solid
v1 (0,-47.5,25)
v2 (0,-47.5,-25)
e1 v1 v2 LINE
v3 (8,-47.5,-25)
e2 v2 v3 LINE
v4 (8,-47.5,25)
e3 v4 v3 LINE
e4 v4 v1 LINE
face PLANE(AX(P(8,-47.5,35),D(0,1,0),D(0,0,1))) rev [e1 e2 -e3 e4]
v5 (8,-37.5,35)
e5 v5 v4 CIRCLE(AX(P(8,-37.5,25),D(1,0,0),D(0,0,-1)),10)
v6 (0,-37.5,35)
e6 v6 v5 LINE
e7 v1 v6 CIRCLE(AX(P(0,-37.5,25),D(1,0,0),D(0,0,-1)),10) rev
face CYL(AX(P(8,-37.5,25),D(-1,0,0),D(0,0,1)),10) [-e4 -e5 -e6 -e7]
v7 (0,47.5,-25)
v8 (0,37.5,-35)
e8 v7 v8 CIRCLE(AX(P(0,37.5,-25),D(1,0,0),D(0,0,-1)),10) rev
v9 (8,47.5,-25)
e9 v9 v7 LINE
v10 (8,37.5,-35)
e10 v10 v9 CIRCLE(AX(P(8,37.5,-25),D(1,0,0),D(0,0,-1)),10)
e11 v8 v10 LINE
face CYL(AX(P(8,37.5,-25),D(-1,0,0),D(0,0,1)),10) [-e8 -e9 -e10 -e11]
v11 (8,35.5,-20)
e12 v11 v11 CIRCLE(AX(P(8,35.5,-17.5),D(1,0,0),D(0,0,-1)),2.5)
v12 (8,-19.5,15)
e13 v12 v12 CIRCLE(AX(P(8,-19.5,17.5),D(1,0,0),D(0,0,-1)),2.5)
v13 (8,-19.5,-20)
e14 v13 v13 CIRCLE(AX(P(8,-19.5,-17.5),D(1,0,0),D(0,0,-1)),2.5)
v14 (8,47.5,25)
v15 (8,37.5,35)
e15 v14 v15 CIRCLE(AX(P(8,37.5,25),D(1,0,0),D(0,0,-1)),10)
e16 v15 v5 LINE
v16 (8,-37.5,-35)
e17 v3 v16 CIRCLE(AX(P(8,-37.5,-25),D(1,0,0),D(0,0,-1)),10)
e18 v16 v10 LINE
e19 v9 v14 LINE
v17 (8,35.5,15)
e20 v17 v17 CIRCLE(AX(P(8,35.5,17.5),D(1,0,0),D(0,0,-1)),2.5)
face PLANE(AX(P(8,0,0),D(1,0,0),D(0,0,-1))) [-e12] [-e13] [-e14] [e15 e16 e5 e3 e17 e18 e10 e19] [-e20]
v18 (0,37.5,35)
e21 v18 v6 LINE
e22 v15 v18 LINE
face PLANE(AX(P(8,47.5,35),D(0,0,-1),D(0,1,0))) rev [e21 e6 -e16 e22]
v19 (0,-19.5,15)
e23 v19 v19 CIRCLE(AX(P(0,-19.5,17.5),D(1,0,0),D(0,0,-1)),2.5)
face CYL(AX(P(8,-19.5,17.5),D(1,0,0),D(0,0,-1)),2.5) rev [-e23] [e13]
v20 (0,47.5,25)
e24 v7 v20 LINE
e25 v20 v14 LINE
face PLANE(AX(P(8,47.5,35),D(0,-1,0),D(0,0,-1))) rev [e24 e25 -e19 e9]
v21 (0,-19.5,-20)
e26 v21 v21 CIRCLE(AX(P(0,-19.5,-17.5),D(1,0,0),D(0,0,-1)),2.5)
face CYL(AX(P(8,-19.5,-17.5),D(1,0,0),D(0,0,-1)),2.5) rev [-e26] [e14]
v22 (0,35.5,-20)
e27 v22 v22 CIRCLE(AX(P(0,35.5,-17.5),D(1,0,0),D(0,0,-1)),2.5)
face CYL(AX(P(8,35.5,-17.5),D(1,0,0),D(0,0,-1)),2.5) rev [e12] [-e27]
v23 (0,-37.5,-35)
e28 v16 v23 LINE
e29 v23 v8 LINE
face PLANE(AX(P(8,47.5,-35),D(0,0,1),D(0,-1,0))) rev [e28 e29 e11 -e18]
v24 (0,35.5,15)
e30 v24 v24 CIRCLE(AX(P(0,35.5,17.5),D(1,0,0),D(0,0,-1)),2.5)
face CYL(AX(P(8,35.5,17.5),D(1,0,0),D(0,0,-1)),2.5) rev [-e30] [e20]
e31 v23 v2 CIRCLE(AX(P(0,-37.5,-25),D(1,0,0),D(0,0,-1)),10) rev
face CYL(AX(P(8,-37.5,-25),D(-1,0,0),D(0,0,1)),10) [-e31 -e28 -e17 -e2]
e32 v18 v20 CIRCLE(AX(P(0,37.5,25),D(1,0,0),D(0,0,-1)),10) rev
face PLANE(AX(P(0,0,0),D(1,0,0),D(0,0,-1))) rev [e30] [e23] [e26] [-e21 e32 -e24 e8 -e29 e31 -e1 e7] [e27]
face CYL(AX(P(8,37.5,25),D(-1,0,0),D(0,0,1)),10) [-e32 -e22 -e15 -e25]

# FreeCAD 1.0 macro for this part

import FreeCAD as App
import Part
import Sketcher

V = App.Vector
Q = App.Units.Quantity


def edges_at(feature, points):
    """Names of the edges that pass closest to the given points."""
    edges = feature.Shape.Edges
    near = lambda p: min(range(len(edges)), key=lambda i: edges[i].distToShape(Part.Vertex(*p))[0])
    return sorted({f"Edge{near(p) + 1}" for p in points})


def add_polygon(sketch, points):
    """Adds a closed chain of lines whose ends are joined by coincident constraints."""
    first, n = sketch.GeometryCount, len(points)
    for a, b in zip(points, points[1:] + points[:1]):
        sketch.addGeometry(Part.LineSegment(App.Vector(*a, 0), App.Vector(*b, 0)), False)
    for i in range(n):
        sketch.addConstraint(Sketcher.Constraint("Coincident", first + i, 2, first + (i + 1) % n, 1))

doc = App.newDocument("Part")
body = doc.addObject("PartDesign::Body", "Body")

# Sketch on YZ plane
sketch1 = doc.addObject("Sketcher::SketchObject", "Sketch")
body.addObject(sketch1)
sketch1.AttachmentSupport = (doc.YZ_Plane, [""])
sketch1.MapMode = "FlatFace"
add_polygon(sketch1, [(48, 35), (-48, 35), (-48, -35), (48, -35)])  # lines 0-3
sketch1.addConstraint([
    Sketcher.Constraint("Horizontal", 0),
    Sketcher.Constraint("Vertical", 1),
    Sketcher.Constraint("Horizontal", 2),
    Sketcher.Constraint("Vertical", 3),
    Sketcher.Constraint("Symmetric", 0, 2, 2, 2, -1, 1),
    Sketcher.Constraint("DistanceX", 0, 2, 0, 1, Q("95 mm")),
    Sketcher.Constraint("DistanceY", 1, 2, 1, 1, Q("70 mm")),
])
pad1 = doc.addObject("PartDesign::Pad", "Pad")
body.addObject(pad1)
pad1.Profile = sketch1
pad1.Length = 8

# Sketch on YZ plane
sketch2 = doc.addObject("Sketcher::SketchObject", "Sketch001")
body.addObject(sketch2)
sketch2.AttachmentSupport = (doc.YZ_Plane, [""])
sketch2.MapMode = "FlatFace"
sketch2.AttachmentOffset = App.Placement(V(0, 0, 8), App.Rotation())
sketch2.addGeometry([
    Part.Circle(V(35.5, 17.5, 0), V(0, 0, 1), 2.5),
    Part.Circle(V(35.5, -17.5, 0), V(0, 0, 1), 2.5),
    Part.Circle(V(-19.5, 17.5, 0), V(0, 0, 1), 2.5),
    Part.Circle(V(-19.5, -17.5, 0), V(0, 0, 1), 2.5),
], False)
sketch2.addConstraint([
    Sketcher.Constraint("Equal", 0, 1),
    Sketcher.Constraint("Equal", 1, 2),
    Sketcher.Constraint("Equal", 2, 3),
    Sketcher.Constraint("Symmetric", 0, 3, 1, 3, -1),
    Sketcher.Constraint("Symmetric", 2, 3, 3, 3, -1),
    Sketcher.Constraint("Horizontal", 0, 3, 2, 3),
    Sketcher.Constraint("Diameter", 0, Q("5 mm")),
    Sketcher.Constraint("DistanceY", 1, 3, 0, 3, Q("35 mm")),
    Sketcher.Constraint("DistanceX", 2, 3, 0, 3, Q("55 mm")),
    Sketcher.Constraint("DistanceX", -1, 1, 0, 3, Q("35.5 mm")),
])
doc.recompute()
hole = doc.addObject("PartDesign::Hole", "Hole")
body.addObject(hole)
hole.Profile = sketch2
hole.ThreadType = "None"
hole.Diameter = 5
hole.DepthType = "Dimension"
hole.Depth = 17
hole.DrillPoint = "Angled"
hole.DrillPointAngle = 118
doc.recompute()

fillet = doc.addObject("PartDesign::Fillet", "Fillet")
body.addObject(fillet)
fillet.Base = (hole, edges_at(hole, [
    (4, 47.5, 35),
    (4, 47.5, -35),
    (4, -47.5, -35),
    (4, -47.5, 35),
]))
fillet.Radius = 10

doc.recompute()
